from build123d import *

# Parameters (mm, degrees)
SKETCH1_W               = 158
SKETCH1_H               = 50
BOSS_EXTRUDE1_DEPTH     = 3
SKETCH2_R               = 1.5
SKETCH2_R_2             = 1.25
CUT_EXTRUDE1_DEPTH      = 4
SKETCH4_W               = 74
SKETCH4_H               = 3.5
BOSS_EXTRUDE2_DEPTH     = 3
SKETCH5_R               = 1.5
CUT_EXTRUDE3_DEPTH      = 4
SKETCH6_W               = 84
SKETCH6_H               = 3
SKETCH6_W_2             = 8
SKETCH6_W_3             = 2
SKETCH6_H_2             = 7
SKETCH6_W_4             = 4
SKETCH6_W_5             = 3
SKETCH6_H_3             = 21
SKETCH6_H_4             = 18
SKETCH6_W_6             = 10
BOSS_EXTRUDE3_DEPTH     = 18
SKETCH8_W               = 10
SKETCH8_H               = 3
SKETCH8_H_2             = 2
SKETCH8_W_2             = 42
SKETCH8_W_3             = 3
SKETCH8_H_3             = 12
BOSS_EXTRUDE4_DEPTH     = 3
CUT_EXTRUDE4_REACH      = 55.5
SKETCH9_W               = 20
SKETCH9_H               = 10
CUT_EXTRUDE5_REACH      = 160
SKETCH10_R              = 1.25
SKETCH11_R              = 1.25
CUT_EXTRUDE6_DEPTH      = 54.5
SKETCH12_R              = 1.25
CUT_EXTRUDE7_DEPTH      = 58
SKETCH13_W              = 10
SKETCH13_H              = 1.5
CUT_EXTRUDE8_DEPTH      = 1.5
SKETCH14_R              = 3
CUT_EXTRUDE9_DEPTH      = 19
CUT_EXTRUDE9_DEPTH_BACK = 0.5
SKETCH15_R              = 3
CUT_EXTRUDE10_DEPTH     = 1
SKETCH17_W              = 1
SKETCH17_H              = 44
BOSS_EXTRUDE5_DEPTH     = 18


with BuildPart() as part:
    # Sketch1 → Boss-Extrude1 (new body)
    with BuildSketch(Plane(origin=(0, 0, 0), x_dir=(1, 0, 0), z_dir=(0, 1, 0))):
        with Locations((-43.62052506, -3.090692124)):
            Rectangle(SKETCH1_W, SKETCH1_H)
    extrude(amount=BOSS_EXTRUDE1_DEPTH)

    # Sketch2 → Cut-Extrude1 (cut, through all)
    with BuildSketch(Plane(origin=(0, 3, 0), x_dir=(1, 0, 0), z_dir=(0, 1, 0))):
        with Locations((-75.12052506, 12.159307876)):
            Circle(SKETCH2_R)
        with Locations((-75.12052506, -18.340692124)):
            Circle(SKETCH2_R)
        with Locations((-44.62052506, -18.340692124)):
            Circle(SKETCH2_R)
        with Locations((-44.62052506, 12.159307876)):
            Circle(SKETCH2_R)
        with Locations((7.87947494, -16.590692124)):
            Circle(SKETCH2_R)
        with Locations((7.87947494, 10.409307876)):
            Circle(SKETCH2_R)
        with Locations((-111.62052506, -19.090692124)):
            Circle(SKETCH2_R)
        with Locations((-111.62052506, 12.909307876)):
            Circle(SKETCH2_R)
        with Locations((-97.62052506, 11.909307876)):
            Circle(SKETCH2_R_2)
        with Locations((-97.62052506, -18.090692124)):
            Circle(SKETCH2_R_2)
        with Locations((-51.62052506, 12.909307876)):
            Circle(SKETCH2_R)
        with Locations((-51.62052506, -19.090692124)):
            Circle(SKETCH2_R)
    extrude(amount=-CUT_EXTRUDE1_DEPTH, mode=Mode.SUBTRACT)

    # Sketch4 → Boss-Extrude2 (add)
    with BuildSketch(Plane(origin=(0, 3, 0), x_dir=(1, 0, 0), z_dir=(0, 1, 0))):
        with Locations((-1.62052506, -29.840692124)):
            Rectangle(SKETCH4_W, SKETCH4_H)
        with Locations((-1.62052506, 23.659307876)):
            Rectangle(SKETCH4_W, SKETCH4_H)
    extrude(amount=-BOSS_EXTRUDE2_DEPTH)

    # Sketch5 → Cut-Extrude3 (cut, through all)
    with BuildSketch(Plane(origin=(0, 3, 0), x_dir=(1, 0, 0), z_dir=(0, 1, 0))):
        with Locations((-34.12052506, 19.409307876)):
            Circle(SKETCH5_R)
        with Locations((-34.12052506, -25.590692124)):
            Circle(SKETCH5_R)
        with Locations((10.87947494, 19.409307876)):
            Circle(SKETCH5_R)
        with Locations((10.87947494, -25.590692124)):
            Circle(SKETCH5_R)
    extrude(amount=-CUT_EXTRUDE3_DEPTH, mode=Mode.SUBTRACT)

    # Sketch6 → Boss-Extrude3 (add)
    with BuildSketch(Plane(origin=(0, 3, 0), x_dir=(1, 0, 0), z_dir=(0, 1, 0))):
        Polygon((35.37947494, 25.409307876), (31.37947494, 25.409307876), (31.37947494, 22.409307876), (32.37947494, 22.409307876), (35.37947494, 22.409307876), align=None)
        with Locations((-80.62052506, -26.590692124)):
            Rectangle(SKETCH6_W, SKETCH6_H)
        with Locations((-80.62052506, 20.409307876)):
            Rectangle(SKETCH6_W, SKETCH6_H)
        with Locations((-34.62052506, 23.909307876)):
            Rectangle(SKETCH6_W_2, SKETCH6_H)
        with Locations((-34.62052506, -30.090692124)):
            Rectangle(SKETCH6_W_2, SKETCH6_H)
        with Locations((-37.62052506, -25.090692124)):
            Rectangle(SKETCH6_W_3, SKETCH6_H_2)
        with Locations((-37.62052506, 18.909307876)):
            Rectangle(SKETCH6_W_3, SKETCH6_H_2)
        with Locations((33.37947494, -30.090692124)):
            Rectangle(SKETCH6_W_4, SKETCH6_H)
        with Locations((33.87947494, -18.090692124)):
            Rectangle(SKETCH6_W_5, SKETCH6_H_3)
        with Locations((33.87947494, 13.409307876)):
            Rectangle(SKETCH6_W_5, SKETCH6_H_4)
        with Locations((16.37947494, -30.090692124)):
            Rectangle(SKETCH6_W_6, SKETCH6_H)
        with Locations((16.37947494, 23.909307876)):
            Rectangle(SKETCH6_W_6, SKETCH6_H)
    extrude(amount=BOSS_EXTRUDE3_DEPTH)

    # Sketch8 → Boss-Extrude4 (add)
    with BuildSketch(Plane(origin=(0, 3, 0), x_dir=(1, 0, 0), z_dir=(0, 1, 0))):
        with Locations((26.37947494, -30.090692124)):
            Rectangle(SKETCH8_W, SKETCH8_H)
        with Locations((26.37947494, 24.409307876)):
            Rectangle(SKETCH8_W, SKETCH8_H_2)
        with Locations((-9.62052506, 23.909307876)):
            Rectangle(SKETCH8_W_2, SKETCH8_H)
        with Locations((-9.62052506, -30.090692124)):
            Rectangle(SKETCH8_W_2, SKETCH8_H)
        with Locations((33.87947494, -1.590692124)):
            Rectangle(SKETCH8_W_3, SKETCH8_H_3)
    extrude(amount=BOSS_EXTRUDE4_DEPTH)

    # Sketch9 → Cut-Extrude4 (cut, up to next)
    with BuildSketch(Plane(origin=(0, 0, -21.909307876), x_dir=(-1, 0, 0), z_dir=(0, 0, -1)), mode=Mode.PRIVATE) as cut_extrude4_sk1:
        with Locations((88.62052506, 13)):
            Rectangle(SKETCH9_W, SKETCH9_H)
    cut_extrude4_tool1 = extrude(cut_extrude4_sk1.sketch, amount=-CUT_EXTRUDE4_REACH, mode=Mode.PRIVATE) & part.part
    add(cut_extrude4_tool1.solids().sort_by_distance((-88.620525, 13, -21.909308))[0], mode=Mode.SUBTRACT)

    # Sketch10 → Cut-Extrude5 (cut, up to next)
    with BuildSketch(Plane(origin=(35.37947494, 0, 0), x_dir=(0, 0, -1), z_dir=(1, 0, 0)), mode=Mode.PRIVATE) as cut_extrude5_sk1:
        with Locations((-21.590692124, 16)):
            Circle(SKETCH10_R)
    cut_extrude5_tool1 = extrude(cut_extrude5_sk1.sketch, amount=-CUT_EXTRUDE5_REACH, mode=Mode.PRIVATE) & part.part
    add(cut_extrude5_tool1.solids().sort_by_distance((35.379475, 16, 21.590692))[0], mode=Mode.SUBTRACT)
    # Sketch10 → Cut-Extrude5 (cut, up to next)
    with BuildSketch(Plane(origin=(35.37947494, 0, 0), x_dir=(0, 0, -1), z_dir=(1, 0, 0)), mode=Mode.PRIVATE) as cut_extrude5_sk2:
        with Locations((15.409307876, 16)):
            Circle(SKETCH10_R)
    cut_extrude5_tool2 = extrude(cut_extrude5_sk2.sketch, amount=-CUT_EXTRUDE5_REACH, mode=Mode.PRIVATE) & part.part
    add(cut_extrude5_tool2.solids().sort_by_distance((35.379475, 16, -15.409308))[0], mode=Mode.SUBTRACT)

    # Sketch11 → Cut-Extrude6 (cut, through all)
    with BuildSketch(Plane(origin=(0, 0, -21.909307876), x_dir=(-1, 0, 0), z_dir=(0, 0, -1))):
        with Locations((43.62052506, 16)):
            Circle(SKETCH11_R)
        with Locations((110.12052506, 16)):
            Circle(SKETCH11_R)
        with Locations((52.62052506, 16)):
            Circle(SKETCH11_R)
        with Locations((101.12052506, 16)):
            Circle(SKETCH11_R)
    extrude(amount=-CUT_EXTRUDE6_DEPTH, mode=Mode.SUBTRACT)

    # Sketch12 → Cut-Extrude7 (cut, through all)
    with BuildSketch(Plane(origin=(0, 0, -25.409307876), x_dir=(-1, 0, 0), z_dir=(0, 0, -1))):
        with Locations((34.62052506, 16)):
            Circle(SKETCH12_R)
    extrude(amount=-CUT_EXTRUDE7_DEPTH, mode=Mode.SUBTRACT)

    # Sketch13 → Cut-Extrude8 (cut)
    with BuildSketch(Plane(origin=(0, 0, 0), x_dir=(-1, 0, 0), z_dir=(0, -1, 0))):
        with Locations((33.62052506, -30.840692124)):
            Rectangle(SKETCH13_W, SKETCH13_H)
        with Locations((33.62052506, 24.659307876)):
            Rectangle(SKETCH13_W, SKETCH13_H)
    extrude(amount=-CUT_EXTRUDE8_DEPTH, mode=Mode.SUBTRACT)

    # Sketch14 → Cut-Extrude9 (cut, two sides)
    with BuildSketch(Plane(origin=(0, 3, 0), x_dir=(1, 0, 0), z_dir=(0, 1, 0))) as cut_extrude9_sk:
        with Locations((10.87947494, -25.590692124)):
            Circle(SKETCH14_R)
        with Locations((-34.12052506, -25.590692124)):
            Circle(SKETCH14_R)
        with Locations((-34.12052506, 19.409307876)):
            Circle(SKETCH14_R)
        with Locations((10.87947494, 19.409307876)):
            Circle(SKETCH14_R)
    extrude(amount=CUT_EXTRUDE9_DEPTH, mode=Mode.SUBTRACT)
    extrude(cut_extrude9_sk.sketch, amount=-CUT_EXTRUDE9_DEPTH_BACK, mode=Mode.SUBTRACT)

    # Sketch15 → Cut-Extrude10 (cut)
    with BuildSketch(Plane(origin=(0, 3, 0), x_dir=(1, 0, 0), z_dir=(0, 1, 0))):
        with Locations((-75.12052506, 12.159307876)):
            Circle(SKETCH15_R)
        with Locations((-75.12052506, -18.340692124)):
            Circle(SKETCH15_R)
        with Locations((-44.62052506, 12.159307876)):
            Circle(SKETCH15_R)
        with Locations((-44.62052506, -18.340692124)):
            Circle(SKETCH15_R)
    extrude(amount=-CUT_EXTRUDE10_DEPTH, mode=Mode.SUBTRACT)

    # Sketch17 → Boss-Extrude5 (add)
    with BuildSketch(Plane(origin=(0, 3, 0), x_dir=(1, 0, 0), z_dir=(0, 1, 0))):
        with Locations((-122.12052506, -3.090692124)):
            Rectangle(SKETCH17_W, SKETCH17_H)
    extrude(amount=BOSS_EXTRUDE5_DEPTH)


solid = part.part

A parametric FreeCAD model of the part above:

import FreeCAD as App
import Part
import Sketcher
Q = App.Units.Quantity

doc = App.newDocument("Part")
body = doc.addObject("PartDesign::Body", "Body")

# Sketch on XZ plane
sketch1 = body.newObject("Sketcher::SketchObject", "Sketch")
sketch1.AttachmentSupport = (doc.getObject("XZ_Plane"), [""])
sketch1.MapMode = "FlatFace"
sketch1.addGeometry(Part.LineSegment(App.Vector(-123, -22, 0), App.Vector(-123, 28, 0)), False)
sketch1.addGeometry(Part.LineSegment(App.Vector(-123, 28, 0), App.Vector(35, 28, 0)), False)
sketch1.addGeometry(Part.LineSegment(App.Vector(35, 28, 0), App.Vector(35, -22, 0)), False)
sketch1.addGeometry(Part.LineSegment(App.Vector(35, -22, 0), App.Vector(-123, -22, 0)), False)
sketch1.addConstraint(Sketcher.Constraint("Coincident", 0, 2, 1, 1))
sketch1.addConstraint(Sketcher.Constraint("Coincident", 1, 2, 2, 1))
sketch1.addConstraint(Sketcher.Constraint("Coincident", 2, 2, 3, 1))
sketch1.addConstraint(Sketcher.Constraint("Coincident", 3, 2, 0, 1))
sketch1.addConstraint(Sketcher.Constraint("Vertical", 0))
sketch1.addConstraint(Sketcher.Constraint("Horizontal", 1))
sketch1.addConstraint(Sketcher.Constraint("Vertical", 2))
sketch1.addConstraint(Sketcher.Constraint("Horizontal", 3))
sketch1.addConstraint(Sketcher.Constraint("DistanceX", 1, 1, 1, 2, Q("158 mm")))
sketch1.addConstraint(Sketcher.Constraint("DistanceY", 0, 1, 0, 2, Q("50 mm")))
sketch1.addConstraint(Sketcher.Constraint("DistanceX", 0, 2, -1, 1, Q("122.620525 mm")))
sketch1.addConstraint(Sketcher.Constraint("DistanceY", -1, 1, 0, 2, Q("28.090692 mm")))
pad1 = body.newObject("PartDesign::Pad", "Pad")
pad1.Profile = sketch1
pad1.Length = 3
pad1.Reversed = True

# Sketch on XZ plane
sketch2 = body.newObject("Sketcher::SketchObject", "Sketch001")
sketch2.AttachmentSupport = (doc.getObject("XZ_Plane"), [""])
sketch2.MapMode = "FlatFace"
sketch2.AttachmentOffset = App.Placement(App.Vector(0, 0, -3), App.Rotation())
sketch2.addGeometry(Part.Circle(App.Vector(-75.1, -12.2, 0), App.Vector(0, 0, 1), 1.5), False)
sketch2.addGeometry(Part.Circle(App.Vector(-75.1, 18.3, 0), App.Vector(0, 0, 1), 1.5), False)
sketch2.addGeometry(Part.Circle(App.Vector(-44.6, 18.3, 0), App.Vector(0, 0, 1), 1.5), False)
sketch2.addGeometry(Part.Circle(App.Vector(-44.6, -12.2, 0), App.Vector(0, 0, 1), 1.5), False)
sketch2.addGeometry(Part.Circle(App.Vector(7.9, 16.6, 0), App.Vector(0, 0, 1), 1.5), False)
sketch2.addGeometry(Part.Circle(App.Vector(7.9, -10.4, 0), App.Vector(0, 0, 1), 1.5), False)
sketch2.addGeometry(Part.Circle(App.Vector(-111.6, 19.1, 0), App.Vector(0, 0, 1), 1.5), False)
sketch2.addGeometry(Part.Circle(App.Vector(-111.6, -12.9, 0), App.Vector(0, 0, 1), 1.5), False)
sketch2.addGeometry(Part.Circle(App.Vector(-97.6, -11.9, 0), App.Vector(0, 0, 1), 1.2), False)
sketch2.addGeometry(Part.Circle(App.Vector(-97.6, 18.1, 0), App.Vector(0, 0, 1), 1.2), False)
sketch2.addGeometry(Part.Circle(App.Vector(-51.6, -12.9, 0), App.Vector(0, 0, 1), 1.5), False)
sketch2.addGeometry(Part.Circle(App.Vector(-51.6, 19.1, 0), App.Vector(0, 0, 1), 1.5), False)
sketch2.addConstraint(Sketcher.Constraint("Equal", 0, 1))
sketch2.addConstraint(Sketcher.Constraint("Equal", 1, 2))
sketch2.addConstraint(Sketcher.Constraint("Equal", 2, 3))
sketch2.addConstraint(Sketcher.Constraint("Equal", 3, 4))
sketch2.addConstraint(Sketcher.Constraint("Equal", 4, 5))
sketch2.addConstraint(Sketcher.Constraint("Equal", 5, 6))
sketch2.addConstraint(Sketcher.Constraint("Equal", 6, 7))
sketch2.addConstraint(Sketcher.Constraint("Equal", 8, 9))
sketch2.addConstraint(Sketcher.Constraint("Equal", 7, 10))
sketch2.addConstraint(Sketcher.Constraint("Equal", 10, 11))
sketch2.addConstraint(Sketcher.Constraint("Horizontal", 1, 3, 2, 3))
sketch2.addConstraint(Sketcher.Constraint("Horizontal", 0, 3, 3, 3))
sketch2.addConstraint(Sketcher.Constraint("Horizontal", 7, 3, 10, 3))
sketch2.addConstraint(Sketcher.Constraint("Horizontal", 6, 3, 11, 3))
sketch2.addConstraint(Sketcher.Constraint("Vertical", 0, 3, 1, 3))
sketch2.addConstraint(Sketcher.Constraint("Vertical", 2, 3, 3, 3))
sketch2.addConstraint(Sketcher.Constraint("Vertical", 4, 3, 5, 3))
sketch2.addConstraint(Sketcher.Constraint("Vertical", 6, 3, 7, 3))
sketch2.addConstraint(Sketcher.Constraint("Vertical", 8, 3, 9, 3))
sketch2.addConstraint(Sketcher.Constraint("Vertical", 10, 3, 11, 3))
sketch2.addConstraint(Sketcher.Constraint("Diameter", 0, Q("3 mm")))
sketch2.addConstraint(Sketcher.Constraint("Diameter", 8, Q("2.5 mm")))
sketch2.addConstraint(Sketcher.Constraint("DistanceX", 1, 3, 4, 3, Q("83 mm")))
sketch2.addConstraint(Sketcher.Constraint("DistanceY", 5, 3, 4, 3, Q("27 mm")))
sketch2.addConstraint(Sketcher.Constraint("DistanceX", 6, 3, 2, 3, Q("67 mm")))
sketch2.addConstraint(Sketcher.Constraint("DistanceY", 7, 3, 6, 3, Q("32 mm")))
sketch2.addConstraint(Sketcher.Constraint("DistanceX", 7, 3, 8, 3, Q("14 mm")))
sketch2.addConstraint(Sketcher.Constraint("DistanceY", 7, 3, 8, 3, Q("1 mm")))
sketch2.addConstraint(Sketcher.Constraint("DistanceY", 9, 3, 6, 3, Q("1 mm")))
sketch2.addConstraint(Sketcher.Constraint("DistanceX", 10, 3, 3, 3, Q("7 mm")))
sketch2.addConstraint(Sketcher.Constraint("DistanceY", 0, 3, 1, 3, Q("30.5 mm")))
sketch2.addConstraint(Sketcher.Constraint("DistanceX", 1, 3, 2, 3, Q("30.5 mm")))
sketch2.addConstraint(Sketcher.Constraint("DistanceY", 4, 3, 6, 3, Q("2.5 mm")))
sketch2.addConstraint(Sketcher.Constraint("DistanceY", 4, 3, 2, 3, Q("1.75 mm")))
sketch2.addConstraint(Sketcher.Constraint("DistanceX", 0, 3, -1, 1, Q("75.120525 mm")))
sketch2.addConstraint(Sketcher.Constraint("DistanceY", 0, 3, -1, 1, Q("12.159308 mm")))
pocket1 = body.newObject("PartDesign::Pocket", "Pocket")
pocket1.Profile = sketch2
pocket1.Type = "ThroughAll"
pocket1.Reversed = True

# Sketch on XZ plane
sketch3 = body.newObject("Sketcher::SketchObject", "Sketch002")
sketch3.AttachmentSupport = (doc.getObject("XZ_Plane"), [""])
sketch3.MapMode = "FlatFace"
sketch3.AttachmentOffset = App.Placement(App.Vector(0, 0, -3), App.Rotation())
sketch3.addGeometry(Part.LineSegment(App.Vector(-38.6, 28.1, 0), App.Vector(-38.6, 31.6, 0)), False)
sketch3.addGeometry(Part.LineSegment(App.Vector(-38.6, 31.6, 0), App.Vector(35.4, 31.6, 0)), False)
sketch3.addGeometry(Part.LineSegment(App.Vector(35.4, 31.6, 0), App.Vector(35.4, 28.1, 0)), False)
sketch3.addGeometry(Part.LineSegment(App.Vector(35.4, 28.1, 0), App.Vector(-38.6, 28.1, 0)), False)
sketch3.addGeometry(Part.LineSegment(App.Vector(-38.6, -25.4, 0), App.Vector(-38.6, -21.9, 0)), False)
sketch3.addGeometry(Part.LineSegment(App.Vector(-38.6, -21.9, 0), App.Vector(35.4, -21.9, 0)), False)
sketch3.addGeometry(Part.LineSegment(App.Vector(35.4, -21.9, 0), App.Vector(35.4, -25.4, 0)), False)
sketch3.addGeometry(Part.LineSegment(App.Vector(35.4, -25.4, 0), App.Vector(-38.6, -25.4, 0)), False)
sketch3.addConstraint(Sketcher.Constraint("Coincident", 0, 2, 1, 1))
sketch3.addConstraint(Sketcher.Constraint("Coincident", 1, 2, 2, 1))
sketch3.addConstraint(Sketcher.Constraint("Coincident", 2, 2, 3, 1))
sketch3.addConstraint(Sketcher.Constraint("Coincident", 3, 2, 0, 1))
sketch3.addConstraint(Sketcher.Constraint("Coincident", 4, 2, 5, 1))
sketch3.addConstraint(Sketcher.Constraint("Coincident", 5, 2, 6, 1))
sketch3.addConstraint(Sketcher.Constraint("Coincident", 6, 2, 7, 1))
sketch3.addConstraint(Sketcher.Constraint("Coincident", 7, 2, 4, 1))
sketch3.addConstraint(Sketcher.Constraint("Vertical", 0))
sketch3.addConstraint(Sketcher.Constraint("Horizontal", 1))
sketch3.addConstraint(Sketcher.Constraint("Vertical", 2))
sketch3.addConstraint(Sketcher.Constraint("Horizontal", 3))
sketch3.addConstraint(Sketcher.Constraint("Vertical", 4))
sketch3.addConstraint(Sketcher.Constraint("Horizontal", 5))
sketch3.addConstraint(Sketcher.Constraint("Vertical", 6))
sketch3.addConstraint(Sketcher.Constraint("Horizontal", 7))
sketch3.addConstraint(Sketcher.Constraint("Vertical", 3, 2, 4, 2))
sketch3.addConstraint(Sketcher.Constraint("Vertical", 2, 2, 5, 2))
sketch3.addConstraint(Sketcher.Constraint("Equal", 2, 4))
sketch3.addConstraint(Sketcher.Constraint("DistanceX", 1, 1, 1, 2, Q("74 mm")))
sketch3.addConstraint(Sketcher.Constraint("DistanceY", 0, 1, 0, 2, Q("3.5 mm")))
sketch3.addConstraint(Sketcher.Constraint("DistanceY", 4, 2, 3, 2, Q("50 mm")))
sketch3.addConstraint(Sketcher.Constraint("DistanceX", 0, 2, -1, 1, Q("38.620525 mm")))
sketch3.addConstraint(Sketcher.Constraint("DistanceY", -1, 1, 0, 2, Q("31.590692 mm")))
pad2 = body.newObject("PartDesign::Pad", "Pad001")
pad2.Profile = sketch3
pad2.Length = 3

# Sketch on XZ plane
sketch4 = body.newObject("Sketcher::SketchObject", "Sketch003")
sketch4.AttachmentSupport = (doc.getObject("XZ_Plane"), [""])
sketch4.MapMode = "FlatFace"
sketch4.AttachmentOffset = App.Placement(App.Vector(0, 0, -3), App.Rotation())
sketch4.addGeometry(Part.Circle(App.Vector(-34.1, -19.4, 0), App.Vector(0, 0, 1), 1.5), False)
sketch4.addGeometry(Part.Circle(App.Vector(-34.1, 25.6, 0), App.Vector(0, 0, 1), 1.5), False)
sketch4.addGeometry(Part.Circle(App.Vector(10.9, -19.4, 0), App.Vector(0, 0, 1), 1.5), False)
sketch4.addGeometry(Part.Circle(App.Vector(10.9, 25.6, 0), App.Vector(0, 0, 1), 1.5), False)
sketch4.addConstraint(Sketcher.Constraint("Equal", 0, 1))
sketch4.addConstraint(Sketcher.Constraint("Equal", 1, 2))
sketch4.addConstraint(Sketcher.Constraint("Equal", 2, 3))
sketch4.addConstraint(Sketcher.Constraint("Horizontal", 0, 3, 2, 3))
sketch4.addConstraint(Sketcher.Constraint("Horizontal", 1, 3, 3, 3))
sketch4.addConstraint(Sketcher.Constraint("Vertical", 0, 3, 1, 3))
sketch4.addConstraint(Sketcher.Constraint("Vertical", 2, 3, 3, 3))
sketch4.addConstraint(Sketcher.Constraint("Diameter", 0, Q("3 mm")))
sketch4.addConstraint(Sketcher.Constraint("DistanceY", 0, 3, 1, 3, Q("45 mm")))
sketch4.addConstraint(Sketcher.Constraint("DistanceX", 0, 3, 2, 3, Q("45 mm")))
sketch4.addConstraint(Sketcher.Constraint("DistanceX", 0, 3, -1, 1, Q("34.120525 mm")))
sketch4.addConstraint(Sketcher.Constraint("DistanceY", 0, 3, -1, 1, Q("19.409308 mm")))
pocket2 = body.newObject("PartDesign::Pocket", "Pocket001")
pocket2.Profile = sketch4
pocket2.Type = "ThroughAll"
pocket2.Reversed = True

# Sketch on XZ plane
sketch5 = body.newObject("Sketcher::SketchObject", "Sketch004")
sketch5.AttachmentSupport = (doc.getObject("XZ_Plane"), [""])
sketch5.MapMode = "FlatFace"
sketch5.AttachmentOffset = App.Placement(App.Vector(0, 0, -3), App.Rotation())
sketch5.addGeometry(Part.LineSegment(App.Vector(35.4, -25.4, 0), App.Vector(31.4, -25.4, 0)), False)
sketch5.addGeometry(Part.LineSegment(App.Vector(31.4, -25.4, 0), App.Vector(31.4, -22.4, 0)), False)
sketch5.addGeometry(Part.LineSegment(App.Vector(31.4, -22.4, 0), App.Vector(32.4, -22.4, 0)), False)
sketch5.addGeometry(Part.LineSegment(App.Vector(32.4, -22.4, 0), App.Vector(32.4, -4.4, 0)), False)
sketch5.addGeometry(Part.LineSegment(App.Vector(32.4, -4.4, 0), App.Vector(35.4, -4.4, 0)), False)
sketch5.addGeometry(Part.LineSegment(App.Vector(35.4, -4.4, 0), App.Vector(35.4, -25.4, 0)), False)
sketch5.addGeometry(Part.LineSegment(App.Vector(-122.6, 25.1, 0), App.Vector(-122.6, 28.1, 0)), False)
sketch5.addGeometry(Part.LineSegment(App.Vector(-122.6, 28.1, 0), App.Vector(-38.6, 28.1, 0)), False)
sketch5.addGeometry(Part.LineSegment(App.Vector(-38.6, 28.1, 0), App.Vector(-38.6, 31.6, 0)), False)
sketch5.addGeometry(Part.LineSegment(App.Vector(-38.6, 31.6, 0), App.Vector(-30.6, 31.6, 0)), False)
sketch5.addGeometry(Part.LineSegment(App.Vector(-30.6, 31.6, 0), App.Vector(-30.6, 28.6, 0)), False)
sketch5.addGeometry(Part.LineSegment(App.Vector(-30.6, 28.6, 0), App.Vector(-36.6, 28.6, 0)), False)
sketch5.addGeometry(Part.LineSegment(App.Vector(-36.6, 28.6, 0), App.Vector(-36.6, 21.6, 0)), False)
sketch5.addGeometry(Part.LineSegment(App.Vector(-36.6, 21.6, 0), App.Vector(-38.6, 21.6, 0)), False)
sketch5.addGeometry(Part.LineSegment(App.Vector(-38.6, 21.6, 0), App.Vector(-38.6, 25.1, 0)), False)
sketch5.addGeometry(Part.LineSegment(App.Vector(-38.6, 25.1, 0), App.Vector(-122.6, 25.1, 0)), False)
sketch5.addGeometry(Part.LineSegment(App.Vector(-122.6, -21.9, 0), App.Vector(-122.6, -18.9, 0)), False)
sketch5.addGeometry(Part.LineSegment(App.Vector(-122.6, -18.9, 0), App.Vector(-38.6, -18.9, 0)), False)
sketch5.addGeometry(Part.LineSegment(App.Vector(-38.6, -18.9, 0), App.Vector(-38.6, -15.4, 0)), False)
sketch5.addGeometry(Part.LineSegment(App.Vector(-38.6, -15.4, 0), App.Vector(-36.6, -15.4, 0)), False)
sketch5.addGeometry(Part.LineSegment(App.Vector(-36.6, -15.4, 0), App.Vector(-36.6, -22.4, 0)), False)
sketch5.addGeometry(Part.LineSegment(App.Vector(-36.6, -22.4, 0), App.Vector(-30.6, -22.4, 0)), False)
sketch5.addGeometry(Part.LineSegment(App.Vector(-30.6, -22.4, 0), App.Vector(-30.6, -25.4, 0)), False)
sketch5.addGeometry(Part.LineSegment(App.Vector(-30.6, -25.4, 0), App.Vector(-38.6, -25.4, 0)), False)
sketch5.addGeometry(Part.LineSegment(App.Vector(-38.6, -25.4, 0), App.Vector(-38.6, -21.9, 0)), False)
sketch5.addGeometry(Part.LineSegment(App.Vector(-38.6, -21.9, 0), App.Vector(-122.6, -21.9, 0)), False)
sketch5.addGeometry(Part.LineSegment(App.Vector(31.4, 28.6, 0), App.Vector(31.4, 31.6, 0)), False)
sketch5.addGeometry(Part.LineSegment(App.Vector(31.4, 31.6, 0), App.Vector(35.4, 31.6, 0)), False)
sketch5.addGeometry(Part.LineSegment(App.Vector(35.4, 31.6, 0), App.Vector(35.4, 7.6, 0)), False)
sketch5.addGeometry(Part.LineSegment(App.Vector(35.4, 7.6, 0), App.Vector(32.4, 7.6, 0)), False)
sketch5.addGeometry(Part.LineSegment(App.Vector(32.4, 7.6, 0), App.Vector(32.4, 28.6, 0)), False)
sketch5.addGeometry(Part.LineSegment(App.Vector(32.4, 28.6, 0), App.Vector(31.4, 28.6, 0)), False)
sketch5.addGeometry(Part.LineSegment(App.Vector(11.4, 28.6, 0), App.Vector(11.4, 31.6, 0)), False)
sketch5.addGeometry(Part.LineSegment(App.Vector(11.4, 31.6, 0), App.Vector(21.4, 31.6, 0)), False)
sketch5.addGeometry(Part.LineSegment(App.Vector(21.4, 31.6, 0), App.Vector(21.4, 28.6, 0)), False)
sketch5.addGeometry(Part.LineSegment(App.Vector(21.4, 28.6, 0), App.Vector(11.4, 28.6, 0)), False)
sketch5.addGeometry(Part.LineSegment(App.Vector(11.4, -25.4, 0), App.Vector(11.4, -22.4, 0)), False)
sketch5.addGeometry(Part.LineSegment(App.Vector(11.4, -22.4, 0), App.Vector(21.4, -22.4, 0)), False)
sketch5.addGeometry(Part.LineSegment(App.Vector(21.4, -22.4, 0), App.Vector(21.4, -25.4, 0)), False)
sketch5.addGeometry(Part.LineSegment(App.Vector(21.4, -25.4, 0), App.Vector(11.4, -25.4, 0)), False)
sketch5.addConstraint(Sketcher.Constraint("Coincident", 0, 2, 1, 1))
sketch5.addConstraint(Sketcher.Constraint("Coincident", 1, 2, 2, 1))
sketch5.addConstraint(Sketcher.Constraint("Coincident", 2, 2, 3, 1))
sketch5.addConstraint(Sketcher.Constraint("Coincident", 3, 2, 4, 1))
sketch5.addConstraint(Sketcher.Constraint("Coincident", 4, 2, 5, 1))
sketch5.addConstraint(Sketcher.Constraint("Coincident", 5, 2, 0, 1))
sketch5.addConstraint(Sketcher.Constraint("Coincident", 6, 2, 7, 1))
sketch5.addConstraint(Sketcher.Constraint("Coincident", 7, 2, 8, 1))
sketch5.addConstraint(Sketcher.Constraint("Coincident", 8, 2, 9, 1))
sketch5.addConstraint(Sketcher.Constraint("Coincident", 9, 2, 10, 1))
sketch5.addConstraint(Sketcher.Constraint("Coincident", 10, 2, 11, 1))
sketch5.addConstraint(Sketcher.Constraint("Coincident", 11, 2, 12, 1))
sketch5.addConstraint(Sketcher.Constraint("Coincident", 12, 2, 13, 1))
sketch5.addConstraint(Sketcher.Constraint("Coincident", 13, 2, 14, 1))
sketch5.addConstraint(Sketcher.Constraint("Coincident", 14, 2, 15, 1))
sketch5.addConstraint(Sketcher.Constraint("Coincident", 15, 2, 6, 1))
sketch5.addConstraint(Sketcher.Constraint("Coincident", 16, 2, 17, 1))
sketch5.addConstraint(Sketcher.Constraint("Coincident", 17, 2, 18, 1))
sketch5.addConstraint(Sketcher.Constraint("Coincident", 18, 2, 19, 1))
sketch5.addConstraint(Sketcher.Constraint("Coincident", 19, 2, 20, 1))
sketch5.addConstraint(Sketcher.Constraint("Coincident", 20, 2, 21, 1))
sketch5.addConstraint(Sketcher.Constraint("Coincident", 21, 2, 22, 1))
sketch5.addConstraint(Sketcher.Constraint("Coincident", 22, 2, 23, 1))
sketch5.addConstraint(Sketcher.Constraint("Coincident", 23, 2, 24, 1))
sketch5.addConstraint(Sketcher.Constraint("Coincident", 24, 2, 25, 1))
sketch5.addConstraint(Sketcher.Constraint("Coincident", 25, 2, 16, 1))
sketch5.addConstraint(Sketcher.Constraint("Coincident", 26, 2, 27, 1))
sketch5.addConstraint(Sketcher.Constraint("Coincident", 27, 2, 28, 1))
sketch5.addConstraint(Sketcher.Constraint("Coincident", 28, 2, 29, 1))
sketch5.addConstraint(Sketcher.Constraint("Coincident", 29, 2, 30, 1))
sketch5.addConstraint(Sketcher.Constraint("Coincident", 30, 2, 31, 1))
sketch5.addConstraint(Sketcher.Constraint("Coincident", 31, 2, 26, 1))
sketch5.addConstraint(Sketcher.Constraint("Coincident", 32, 2, 33, 1))
sketch5.addConstraint(Sketcher.Constraint("Coincident", 33, 2, 34, 1))
sketch5.addConstraint(Sketcher.Constraint("Coincident", 34, 2, 35, 1))
sketch5.addConstraint(Sketcher.Constraint("Coincident", 35, 2, 32, 1))
sketch5.addConstraint(Sketcher.Constraint("Coincident", 36, 2, 37, 1))
sketch5.addConstraint(Sketcher.Constraint("Coincident", 37, 2, 38, 1))
sketch5.addConstraint(Sketcher.Constraint("Coincident", 38, 2, 39, 1))
sketch5.addConstraint(Sketcher.Constraint("Coincident", 39, 2, 36, 1))
sketch5.addConstraint(Sketcher.Constraint("Horizontal", 0))
sketch5.addConstraint(Sketcher.Constraint("Vertical", 1))
sketch5.addConstraint(Sketcher.Constraint("Horizontal", 2))
sketch5.addConstraint(Sketcher.Constraint("Vertical", 3))
sketch5.addConstraint(Sketcher.Constraint("Horizontal", 4))
sketch5.addConstraint(Sketcher.Constraint("Vertical", 5))
sketch5.addConstraint(Sketcher.Constraint("Vertical", 6))
sketch5.addConstraint(Sketcher.Constraint("Horizontal", 7))
sketch5.addConstraint(Sketcher.Constraint("Vertical", 8))
sketch5.addConstraint(Sketcher.Constraint("Horizontal", 9))
sketch5.addConstraint(Sketcher.Constraint("Vertical", 10))
sketch5.addConstraint(Sketcher.Constraint("Horizontal", 11))
sketch5.addConstraint(Sketcher.Constraint("Vertical", 12))
sketch5.addConstraint(Sketcher.Constraint("Horizontal", 13))
sketch5.addConstraint(Sketcher.Constraint("Vertical", 14))
sketch5.addConstraint(Sketcher.Constraint("Horizontal", 15))
sketch5.addConstraint(Sketcher.Constraint("Vertical", 16))
sketch5.addConstraint(Sketcher.Constraint("Horizontal", 17))
sketch5.addConstraint(Sketcher.Constraint("Vertical", 18))
sketch5.addConstraint(Sketcher.Constraint("Horizontal", 19))
sketch5.addConstraint(Sketcher.Constraint("Vertical", 20))
sketch5.addConstraint(Sketcher.Constraint("Horizontal", 21))
sketch5.addConstraint(Sketcher.Constraint("Vertical", 22))
sketch5.addConstraint(Sketcher.Constraint("Horizontal", 23))
sketch5.addConstraint(Sketcher.Constraint("Vertical", 24))
sketch5.addConstraint(Sketcher.Constraint("Horizontal", 25))
sketch5.addConstraint(Sketcher.Constraint("Vertical", 26))
sketch5.addConstraint(Sketcher.Constraint("Horizontal", 27))
sketch5.addConstraint(Sketcher.Constraint("Vertical", 28))
sketch5.addConstraint(Sketcher.Constraint("Horizontal", 29))
sketch5.addConstraint(Sketcher.Constraint("Vertical", 30))
sketch5.addConstraint(Sketcher.Constraint("Horizontal", 31))
sketch5.addConstraint(Sketcher.Constraint("Vertical", 32))
sketch5.addConstraint(Sketcher.Constraint("Horizontal", 33))
sketch5.addConstraint(Sketcher.Constraint("Vertical", 34))
sketch5.addConstraint(Sketcher.Constraint("Horizontal", 35))
sketch5.addConstraint(Sketcher.Constraint("Vertical", 36))
sketch5.addConstraint(Sketcher.Constraint("Horizontal", 37))
sketch5.addConstraint(Sketcher.Constraint("Vertical", 38))
sketch5.addConstraint(Sketcher.Constraint("Horizontal", 39))
sketch5.addConstraint(Sketcher.Constraint("Horizontal", 2, 2, 20, 2))
sketch5.addConstraint(Sketcher.Constraint("Horizontal", 5, 2, 22, 2))
sketch5.addConstraint(Sketcher.Constraint("Horizontal", 9, 2, 26, 2))
sketch5.addConstraint(Sketcher.Constraint("Horizontal", 11, 2, 30, 2))
sketch5.addConstraint(Sketcher.Constraint("Horizontal", 27, 2, 32, 2))
sketch5.addConstraint(Sketcher.Constraint("Horizontal", 31, 2, 34, 2))
sketch5.addConstraint(Sketcher.Constraint("Horizontal", 21, 2, 36, 2))
sketch5.addConstraint(Sketcher.Constraint("Horizontal", 23, 2, 38, 2))
sketch5.addConstraint(Sketcher.Constraint("Vertical", 8, 2, 13, 2))
sketch5.addConstraint(Sketcher.Constraint("Vertical", 15, 2, 16, 2))
sketch5.addConstraint(Sketcher.Constraint("Vertical", 14, 2, 17, 2))
sketch5.addConstraint(Sketcher.Constraint("Vertical", 12, 2, 19, 2))
sketch5.addConstraint(Sketcher.Constraint("Vertical", 10, 2, 21, 2))
sketch5.addConstraint(Sketcher.Constraint("Vertical", 18, 2, 23, 2))
sketch5.addConstraint(Sketcher.Constraint("Vertical", 1, 2, 26, 2))
sketch5.addConstraint(Sketcher.Constraint("Vertical", 5, 2, 27, 2))
sketch5.addConstraint(Sketcher.Constraint("Vertical", 3, 2, 29, 2))
sketch5.addConstraint(Sketcher.Constraint("Vertical", 35, 2, 36, 2))
sketch5.addConstraint(Sketcher.Constraint("Vertical", 34, 2, 37, 2))
sketch5.addConstraint(Sketcher.Constraint("Equal", 29, 1))
sketch5.addConstraint(Sketcher.Constraint("Equal", 1, 6))
sketch5.addConstraint(Sketcher.Constraint("Equal", 6, 10))
sketch5.addConstraint(Sketcher.Constraint("Equal", 8, 14))
sketch5.addConstraint(Sketcher.Constraint("Equal", 10, 16))
sketch5.addConstraint(Sketcher.Constraint("Equal", 14, 18))
sketch5.addConstraint(Sketcher.Constraint("Equal", 12, 20))
sketch5.addConstraint(Sketcher.Constraint("Equal", 5, 30))
sketch5.addConstraint(Sketcher.Constraint("DistanceX", 0, 2, 0, 1, Q("4 mm")))
sketch5.addConstraint(Sketcher.Constraint("DistanceX", 2, 1, 2, 2, Q("1 mm")))
sketch5.addConstraint(Sketcher.Constraint("DistanceX", 7, 1, 7, 2, Q("84 mm")))
sketch5.addConstraint(Sketcher.Constraint("DistanceX", 9, 1, 9, 2, Q("8 mm")))
sketch5.addConstraint(Sketcher.Constraint("DistanceX", 11, 2, 11, 1, Q("6 mm")))
sketch5.addConstraint(Sketcher.Constraint("DistanceX", 33, 1, 33, 2, Q("10 mm")))
sketch5.addConstraint(Sketcher.Constraint("DistanceY", 3, 1, 3, 2, Q("18 mm")))
sketch5.addConstraint(Sketcher.Constraint("DistanceY", 12, 2, 12, 1, Q("7 mm")))
sketch5.addConstraint(Sketcher.Constraint("DistanceX", 6, 2, 3, 2, Q("155 mm")))
sketch5.addConstraint(Sketcher.Constraint("DistanceY", 3, 2, 8, 2, Q("36 mm")))
sketch5.addConstraint(Sketcher.Constraint("DistanceX", 32, 2, 26, 2, Q("20 mm")))
sketch5.addConstraint(Sketcher.Constraint("DistanceX", -1, 1, 0, 2, Q("31.379475 mm")))
sketch5.addConstraint(Sketcher.Constraint("DistanceY", 0, 2, -1, 1, Q("25.409308 mm")))
pad3 = body.newObject("PartDesign::Pad", "Pad002")
pad3.Profile = sketch5
pad3.Length = 18
pad3.Reversed = True

# Sketch on XZ plane
sketch6 = body.newObject("Sketcher::SketchObject", "Sketch005")
sketch6.AttachmentSupport = (doc.getObject("XZ_Plane"), [""])
sketch6.MapMode = "FlatFace"
sketch6.AttachmentOffset = App.Placement(App.Vector(0, 0, -3), App.Rotation())
sketch6.addGeometry(Part.LineSegment(App.Vector(21.4, 28.6, 0), App.Vector(21.4, 31.6, 0)), False)
sketch6.addGeometry(Part.LineSegment(App.Vector(21.4, 31.6, 0), App.Vector(31.4, 31.6, 0)), False)
sketch6.addGeometry(Part.LineSegment(App.Vector(31.4, 31.6, 0), App.Vector(31.4, 28.6, 0)), False)
sketch6.addGeometry(Part.LineSegment(App.Vector(31.4, 28.6, 0), App.Vector(21.4, 28.6, 0)), False)
sketch6.addGeometry(Part.LineSegment(App.Vector(21.4, -25.4, 0), App.Vector(21.4, -23.4, 0)), False)
sketch6.addGeometry(Part.LineSegment(App.Vector(21.4, -23.4, 0), App.Vector(31.4, -23.4, 0)), False)
sketch6.addGeometry(Part.LineSegment(App.Vector(31.4, -23.4, 0), App.Vector(31.4, -25.4, 0)), False)
sketch6.addGeometry(Part.LineSegment(App.Vector(31.4, -25.4, 0), App.Vector(21.4, -25.4, 0)), False)
sketch6.addGeometry(Part.LineSegment(App.Vector(-30.6, -25.4, 0), App.Vector(-30.6, -22.4, 0)), False)
sketch6.addGeometry(Part.LineSegment(App.Vector(-30.6, -22.4, 0), App.Vector(11.4, -22.4, 0)), False)
sketch6.addGeometry(Part.LineSegment(App.Vector(11.4, -22.4, 0), App.Vector(11.4, -25.4, 0)), False)
sketch6.addGeometry(Part.LineSegment(App.Vector(11.4, -25.4, 0), App.Vector(-30.6, -25.4, 0)), False)
sketch6.addGeometry(Part.LineSegment(App.Vector(-30.6, 28.6, 0), App.Vector(-30.6, 31.6, 0)), False)
sketch6.addGeometry(Part.LineSegment(App.Vector(-30.6, 31.6, 0), App.Vector(11.4, 31.6, 0)), False)
sketch6.addGeometry(Part.LineSegment(App.Vector(11.4, 31.6, 0), App.Vector(11.4, 28.6, 0)), False)
sketch6.addGeometry(Part.LineSegment(App.Vector(11.4, 28.6, 0), App.Vector(-30.6, 28.6, 0)), False)
sketch6.addGeometry(Part.LineSegment(App.Vector(32.4, -4.4, 0), App.Vector(32.4, 7.6, 0)), False)
sketch6.addGeometry(Part.LineSegment(App.Vector(32.4, 7.6, 0), App.Vector(35.4, 7.6, 0)), False)
sketch6.addGeometry(Part.LineSegment(App.Vector(35.4, 7.6, 0), App.Vector(35.4, -4.4, 0)), False)
sketch6.addGeometry(Part.LineSegment(App.Vector(35.4, -4.4, 0), App.Vector(32.4, -4.4, 0)), False)
sketch6.addConstraint(Sketcher.Constraint("Coincident", 0, 2, 1, 1))
sketch6.addConstraint(Sketcher.Constraint("Coincident", 1, 2, 2, 1))
sketch6.addConstraint(Sketcher.Constraint("Coincident", 2, 2, 3, 1))
sketch6.addConstraint(Sketcher.Constraint("Coincident", 3, 2, 0, 1))
sketch6.addConstraint(Sketcher.Constraint("Coincident", 4, 2, 5, 1))
sketch6.addConstraint(Sketcher.Constraint("Coincident", 5, 2, 6, 1))
sketch6.addConstraint(Sketcher.Constraint("Coincident", 6, 2, 7, 1))
sketch6.addConstraint(Sketcher.Constraint("Coincident", 7, 2, 4, 1))
sketch6.addConstraint(Sketcher.Constraint("Coincident", 8, 2, 9, 1))
sketch6.addConstraint(Sketcher.Constraint("Coincident", 9, 2, 10, 1))
sketch6.addConstraint(Sketcher.Constraint("Coincident", 10, 2, 11, 1))
sketch6.addConstraint(Sketcher.Constraint("Coincident", 11, 2, 8, 1))
sketch6.addConstraint(Sketcher.Constraint("Coincident", 12, 2, 13, 1))
sketch6.addConstraint(Sketcher.Constraint("Coincident", 13, 2, 14, 1))
sketch6.addConstraint(Sketcher.Constraint("Coincident", 14, 2, 15, 1))
sketch6.addConstraint(Sketcher.Constraint("Coincident", 15, 2, 12, 1))
sketch6.addConstraint(Sketcher.Constraint("Coincident", 16, 2, 17, 1))
sketch6.addConstraint(Sketcher.Constraint("Coincident", 17, 2, 18, 1))
sketch6.addConstraint(Sketcher.Constraint("Coincident", 18, 2, 19, 1))
sketch6.addConstraint(Sketcher.Constraint("Coincident", 19, 2, 16, 1))
sketch6.addConstraint(Sketcher.Constraint("Vertical", 0))
sketch6.addConstraint(Sketcher.Constraint("Horizontal", 1))
sketch6.addConstraint(Sketcher.Constraint("Vertical", 2))
sketch6.addConstraint(Sketcher.Constraint("Horizontal", 3))
sketch6.addConstraint(Sketcher.Constraint("Vertical", 4))
sketch6.addConstraint(Sketcher.Constraint("Horizontal", 5))
sketch6.addConstraint(Sketcher.Constraint("Vertical", 6))
sketch6.addConstraint(Sketcher.Constraint("Horizontal", 7))
sketch6.addConstraint(Sketcher.Constraint("Vertical", 8))
sketch6.addConstraint(Sketcher.Constraint("Horizontal", 9))
sketch6.addConstraint(Sketcher.Constraint("Vertical", 10))
sketch6.addConstraint(Sketcher.Constraint("Horizontal", 11))
sketch6.addConstraint(Sketcher.Constraint("Vertical", 12))
sketch6.addConstraint(Sketcher.Constraint("Horizontal", 13))
sketch6.addConstraint(Sketcher.Constraint("Vertical", 14))
sketch6.addConstraint(Sketcher.Constraint("Horizontal", 15))
sketch6.addConstraint(Sketcher.Constraint("Vertical", 16))
sketch6.addConstraint(Sketcher.Constraint("Horizontal", 17))
sketch6.addConstraint(Sketcher.Constraint("Vertical", 18))
sketch6.addConstraint(Sketcher.Constraint("Horizontal", 19))
sketch6.addConstraint(Sketcher.Constraint("Horizontal", 7, 2, 10, 2))
sketch6.addConstraint(Sketcher.Constraint("Horizontal", 1, 2, 12, 2))
sketch6.addConstraint(Sketcher.Constraint("Horizontal", 3, 2, 14, 2))
sketch6.addConstraint(Sketcher.Constraint("Vertical", 3, 2, 4, 2))
sketch6.addConstraint(Sketcher.Constraint("Vertical", 2, 2, 5, 2))
sketch6.addConstraint(Sketcher.Constraint("Vertical", 11, 2, 12, 2))
sketch6.addConstraint(Sketcher.Constraint("Vertical", 10, 2, 13, 2))
sketch6.addConstraint(Sketcher.Constraint("Equal", 19, 0))
sketch6.addConstraint(Sketcher.Constraint("Equal", 2, 8))
sketch6.addConstraint(Sketcher.Constraint("DistanceX", 1, 1, 1, 2, Q("10 mm")))
sketch6.addConstraint(Sketcher.Constraint("DistanceX", 9, 1, 9, 2, Q("42 mm")))
sketch6.addConstraint(Sketcher.Constraint("DistanceX", 17, 1, 17, 2, Q("3 mm")))
sketch6.addConstraint(Sketcher.Constraint("DistanceY", 4, 1, 4, 2, Q("2 mm")))
sketch6.addConstraint(Sketcher.Constraint("DistanceY", 16, 1, 16, 2, Q("12 mm")))
sketch6.addConstraint(Sketcher.Constraint("DistanceY", 4, 2, 3, 2, Q("52 mm")))
sketch6.addConstraint(Sketcher.Constraint("DistanceX", 8, 2, 4, 2, Q("52 mm")))
sketch6.addConstraint(Sketcher.Constraint("DistanceX", 2, 2, 16, 2, Q("1 mm")))
sketch6.addConstraint(Sketcher.Constraint("DistanceY", 16, 2, 2, 2, Q("21 mm")))
sketch6.addConstraint(Sketcher.Constraint("DistanceX", -1, 1, 0, 2, Q("21.379475 mm")))
sketch6.addConstraint(Sketcher.Constraint("DistanceY", -1, 1, 0, 2, Q("31.590692 mm")))
pad4 = body.newObject("PartDesign::Pad", "Pad003")
pad4.Profile = sketch6
pad4.Length = 3
pad4.Reversed = True

# Sketch on XY plane
sketch7 = body.newObject("Sketcher::SketchObject", "Sketch006")
sketch7.AttachmentSupport = (doc.getObject("XY_Plane"), [""])
sketch7.MapMode = "FlatFace"
sketch7.AttachmentOffset = App.Placement(App.Vector(0, 0, -21.909308), App.Rotation())
sketch7.addGeometry(Part.LineSegment(App.Vector(-79, 18, 0), App.Vector(-79, 8, 0)), False)
sketch7.addGeometry(Part.LineSegment(App.Vector(-79, 8, 0), App.Vector(-99, 8, 0)), False)
sketch7.addGeometry(Part.LineSegment(App.Vector(-99, 8, 0), App.Vector(-99, 18, 0)), False)
sketch7.addGeometry(Part.LineSegment(App.Vector(-99, 18, 0), App.Vector(-79, 18, 0)), False)
sketch7.addConstraint(Sketcher.Constraint("Coincident", 0, 2, 1, 1))
sketch7.addConstraint(Sketcher.Constraint("Coincident", 1, 2, 2, 1))
sketch7.addConstraint(Sketcher.Constraint("Coincident", 2, 2, 3, 1))
sketch7.addConstraint(Sketcher.Constraint("Coincident", 3, 2, 0, 1))
sketch7.addConstraint(Sketcher.Constraint("Vertical", 0))
sketch7.addConstraint(Sketcher.Constraint("Horizontal", 1))
sketch7.addConstraint(Sketcher.Constraint("Vertical", 2))
sketch7.addConstraint(Sketcher.Constraint("Horizontal", 3))
sketch7.addConstraint(Sketcher.Constraint("DistanceX", 1, 2, 1, 1, Q("20 mm")))
sketch7.addConstraint(Sketcher.Constraint("DistanceY", 0, 2, 0, 1, Q("10 mm")))
sketch7.addConstraint(Sketcher.Constraint("DistanceY", -1, 1, 0, 2, Q("8 mm")))
sketch7.addConstraint(Sketcher.Constraint("DistanceX", 0, 2, -1, 1, Q("78.620525 mm")))
pocket3 = body.newObject("PartDesign::Pocket", "Pocket002")
pocket3.Profile = sketch7
pocket3.Type = "UpToFirst"
pocket3.Reversed = True

# Sketch on YZ plane
sketch8 = body.newObject("Sketcher::SketchObject", "Sketch007")
sketch8.AttachmentSupport = (doc.getObject("YZ_Plane"), [""])
sketch8.MapMode = "FlatFace"
sketch8.AttachmentOffset = App.Placement(App.Vector(0, 0, 35.379475), App.Rotation())
sketch8.addGeometry(Part.Circle(App.Vector(16, 21.6, 0), App.Vector(0, 0, 1), 1.2), False)
sketch8.addConstraint(Sketcher.Constraint("Diameter", 0, Q("2.5 mm")))
sketch8.addConstraint(Sketcher.Constraint("DistanceX", -1, 1, 0, 3, Q("16 mm")))
sketch8.addConstraint(Sketcher.Constraint("DistanceY", -1, 1, 0, 3, Q("21.590692 mm")))
pocket4 = body.newObject("PartDesign::Pocket", "Pocket003")
pocket4.Profile = sketch8
pocket4.Type = "UpToFirst"

# Sketch on YZ plane
sketch9 = body.newObject("Sketcher::SketchObject", "Sketch008")
sketch9.AttachmentSupport = (doc.getObject("YZ_Plane"), [""])
sketch9.MapMode = "FlatFace"
sketch9.AttachmentOffset = App.Placement(App.Vector(0, 0, 35.379475), App.Rotation())
sketch9.addGeometry(Part.Circle(App.Vector(16, -15.4, 0), App.Vector(0, 0, 1), 1.2), False)
sketch9.addConstraint(Sketcher.Constraint("Diameter", 0, Q("2.5 mm")))
sketch9.addConstraint(Sketcher.Constraint("DistanceX", -1, 1, 0, 3, Q("16 mm")))
sketch9.addConstraint(Sketcher.Constraint("DistanceY", 0, 3, -1, 1, Q("15.409308 mm")))
pocket5 = body.newObject("PartDesign::Pocket", "Pocket004")
pocket5.Profile = sketch9
pocket5.Type = "UpToFirst"

# Sketch on XY plane
sketch10 = body.newObject("Sketcher::SketchObject", "Sketch009")
sketch10.AttachmentSupport = (doc.getObject("XY_Plane"), [""])
sketch10.MapMode = "FlatFace"
sketch10.AttachmentOffset = App.Placement(App.Vector(0, 0, -21.909308), App.Rotation())
sketch10.addGeometry(Part.Circle(App.Vector(-43.6, 16, 0), App.Vector(0, 0, 1), 1.2), False)
sketch10.addGeometry(Part.Circle(App.Vector(-110.1, 16, 0), App.Vector(0, 0, 1), 1.2), False)
sketch10.addGeometry(Part.Circle(App.Vector(-52.6, 16, 0), App.Vector(0, 0, 1), 1.2), False)
sketch10.addGeometry(Part.Circle(App.Vector(-101.1, 16, 0), App.Vector(0, 0, 1), 1.2), False)
sketch10.addConstraint(Sketcher.Constraint("Equal", 0, 1))
sketch10.addConstraint(Sketcher.Constraint("Equal", 1, 2))
sketch10.addConstraint(Sketcher.Constraint("Equal", 2, 3))
sketch10.addConstraint(Sketcher.Constraint("Horizontal", 0, 3, 1, 3))
sketch10.addConstraint(Sketcher.Constraint("Horizontal", 1, 3, 2, 3))
sketch10.addConstraint(Sketcher.Constraint("Horizontal", 2, 3, 3, 3))
sketch10.addConstraint(Sketcher.Constraint("Diameter", 0, Q("2.5 mm")))
sketch10.addConstraint(Sketcher.Constraint("DistanceY", -1, 1, 0, 3, Q("16 mm")))
sketch10.addConstraint(Sketcher.Constraint("DistanceX", 2, 3, 0, 3, Q("9 mm")))
sketch10.addConstraint(Sketcher.Constraint("DistanceX", 1, 3, 3, 3, Q("9 mm")))
sketch10.addConstraint(Sketcher.Constraint("DistanceX", 1, 3, 0, 3, Q("66.5 mm")))
sketch10.addConstraint(Sketcher.Constraint("DistanceX", 0, 3, -1, 1, Q("43.620525 mm")))
pocket6 = body.newObject("PartDesign::Pocket", "Pocket005")
pocket6.Profile = sketch10
pocket6.Type = "ThroughAll"
pocket6.Reversed = True

# Sketch on XY plane
sketch11 = body.newObject("Sketcher::SketchObject", "Sketch010")
sketch11.AttachmentSupport = (doc.getObject("XY_Plane"), [""])
sketch11.MapMode = "FlatFace"
sketch11.AttachmentOffset = App.Placement(App.Vector(0, 0, -25.409308), App.Rotation())
sketch11.addGeometry(Part.Circle(App.Vector(-34.6, 16, 0), App.Vector(0, 0, 1), 1.2), False)
sketch11.addConstraint(Sketcher.Constraint("Diameter", 0, Q("2.5 mm")))
sketch11.addConstraint(Sketcher.Constraint("DistanceY", -1, 1, 0, 3, Q("16 mm")))
sketch11.addConstraint(Sketcher.Constraint("DistanceX", 0, 3, -1, 1, Q("34.620525 mm")))
pocket7 = body.newObject("PartDesign::Pocket", "Pocket006")
pocket7.Profile = sketch11
pocket7.Type = "ThroughAll"
pocket7.Reversed = True

# Sketch on XZ plane
sketch12 = body.newObject("Sketcher::SketchObject", "Sketch011")
sketch12.AttachmentSupport = (doc.getObject("XZ_Plane"), [""])
sketch12.MapMode = "FlatFace"
sketch12.addGeometry(Part.LineSegment(App.Vector(-28.6, 30.1, 0), App.Vector(-28.6, 31.6, 0)), False)
sketch12.addGeometry(Part.LineSegment(App.Vector(-28.6, 31.6, 0), App.Vector(-38.6, 31.6, 0)), False)
sketch12.addGeometry(Part.LineSegment(App.Vector(-38.6, 31.6, 0), App.Vector(-38.6, 30.1, 0)), False)
sketch12.addGeometry(Part.LineSegment(App.Vector(-38.6, 30.1, 0), App.Vector(-28.6, 30.1, 0)), False)
sketch12.addGeometry(Part.LineSegment(App.Vector(-28.6, -25.4, 0), App.Vector(-28.6, -23.9, 0)), False)
sketch12.addGeometry(Part.LineSegment(App.Vector(-28.6, -23.9, 0), App.Vector(-38.6, -23.9, 0)), False)
sketch12.addGeometry(Part.LineSegment(App.Vector(-38.6, -23.9, 0), App.Vector(-38.6, -25.4, 0)), False)
sketch12.addGeometry(Part.LineSegment(App.Vector(-38.6, -25.4, 0), App.Vector(-28.6, -25.4, 0)), False)
sketch12.addConstraint(Sketcher.Constraint("Coincident", 0, 2, 1, 1))
sketch12.addConstraint(Sketcher.Constraint("Coincident", 1, 2, 2, 1))
sketch12.addConstraint(Sketcher.Constraint("Coincident", 2, 2, 3, 1))
sketch12.addConstraint(Sketcher.Constraint("Coincident", 3, 2, 0, 1))
sketch12.addConstraint(Sketcher.Constraint("Coincident", 4, 2, 5, 1))
sketch12.addConstraint(Sketcher.Constraint("Coincident", 5, 2, 6, 1))
sketch12.addConstraint(Sketcher.Constraint("Coincident", 6, 2, 7, 1))
sketch12.addConstraint(Sketcher.Constraint("Coincident", 7, 2, 4, 1))
sketch12.addConstraint(Sketcher.Constraint("Vertical", 0))
sketch12.addConstraint(Sketcher.Constraint("Horizontal", 1))
sketch12.addConstraint(Sketcher.Constraint("Vertical", 2))
sketch12.addConstraint(Sketcher.Constraint("Horizontal", 3))
sketch12.addConstraint(Sketcher.Constraint("Vertical", 4))
sketch12.addConstraint(Sketcher.Constraint("Horizontal", 5))
sketch12.addConstraint(Sketcher.Constraint("Vertical", 6))
sketch12.addConstraint(Sketcher.Constraint("Horizontal", 7))
sketch12.addConstraint(Sketcher.Constraint("Vertical", 3, 2, 4, 2))
sketch12.addConstraint(Sketcher.Constraint("Vertical", 2, 2, 5, 2))
sketch12.addConstraint(Sketcher.Constraint("Equal", 2, 4))
sketch12.addConstraint(Sketcher.Constraint("DistanceX", 1, 2, 1, 1, Q("10 mm")))
sketch12.addConstraint(Sketcher.Constraint("DistanceY", 0, 1, 0, 2, Q("1.5 mm")))
sketch12.addConstraint(Sketcher.Constraint("DistanceY", 4, 2, 3, 2, Q("54 mm")))
sketch12.addConstraint(Sketcher.Constraint("DistanceX", 0, 2, -1, 1, Q("28.620525 mm")))
sketch12.addConstraint(Sketcher.Constraint("DistanceY", -1, 1, 0, 2, Q("31.590692 mm")))
pocket8 = body.newObject("PartDesign::Pocket", "Pocket007")
pocket8.Profile = sketch12
pocket8.Length = 1.5

# Sketch on XZ plane
sketch13 = body.newObject("Sketcher::SketchObject", "Sketch012")
sketch13.AttachmentSupport = (doc.getObject("XZ_Plane"), [""])
sketch13.MapMode = "FlatFace"
sketch13.AttachmentOffset = App.Placement(App.Vector(0, 0, -3), App.Rotation())
sketch13.addGeometry(Part.Circle(App.Vector(10.9, 25.6, 0), App.Vector(0, 0, 1), 3), False)
sketch13.addGeometry(Part.Circle(App.Vector(-34.1, 25.6, 0), App.Vector(0, 0, 1), 3), False)
sketch13.addGeometry(Part.Circle(App.Vector(-34.1, -19.4, 0), App.Vector(0, 0, 1), 3), False)
sketch13.addGeometry(Part.Circle(App.Vector(10.9, -19.4, 0), App.Vector(0, 0, 1), 3), False)
sketch13.addConstraint(Sketcher.Constraint("Equal", 0, 1))
sketch13.addConstraint(Sketcher.Constraint("Equal", 1, 2))
sketch13.addConstraint(Sketcher.Constraint("Equal", 2, 3))
sketch13.addConstraint(Sketcher.Constraint("Horizontal", 0, 3, 1, 3))
sketch13.addConstraint(Sketcher.Constraint("Horizontal", 2, 3, 3, 3))
sketch13.addConstraint(Sketcher.Constraint("Vertical", 1, 3, 2, 3))
sketch13.addConstraint(Sketcher.Constraint("Vertical", 0, 3, 3, 3))
sketch13.addConstraint(Sketcher.Constraint("Diameter", 0, Q("6 mm")))
sketch13.addConstraint(Sketcher.Constraint("DistanceX", 1, 3, 0, 3, Q("45 mm")))
sketch13.addConstraint(Sketcher.Constraint("DistanceY", 2, 3, 1, 3, Q("45 mm")))
sketch13.addConstraint(Sketcher.Constraint("DistanceX", -1, 1, 0, 3, Q("10.879475 mm")))
sketch13.addConstraint(Sketcher.Constraint("DistanceY", -1, 1, 0, 3, Q("25.590692 mm")))
pocket9 = body.newObject("PartDesign::Pocket", "Pocket008")
pocket9.Profile = sketch13
pocket9.Type = "TwoLengths"
pocket9.Length = 19
pocket9.Length2 = 0.5

# Sketch on XZ plane
sketch14 = body.newObject("Sketcher::SketchObject", "Sketch013")
sketch14.AttachmentSupport = (doc.getObject("XZ_Plane"), [""])
sketch14.MapMode = "FlatFace"
sketch14.AttachmentOffset = App.Placement(App.Vector(0, 0, -3), App.Rotation())
sketch14.addGeometry(Part.Circle(App.Vector(-75.1, -12.2, 0), App.Vector(0, 0, 1), 3), False)
sketch14.addGeometry(Part.Circle(App.Vector(-75.1, 18.3, 0), App.Vector(0, 0, 1), 3), False)
sketch14.addGeometry(Part.Circle(App.Vector(-44.6, -12.2, 0), App.Vector(0, 0, 1), 3), False)
sketch14.addGeometry(Part.Circle(App.Vector(-44.6, 18.3, 0), App.Vector(0, 0, 1), 3), False)
sketch14.addConstraint(Sketcher.Constraint("Equal", 0, 1))
sketch14.addConstraint(Sketcher.Constraint("Equal", 1, 2))
sketch14.addConstraint(Sketcher.Constraint("Equal", 2, 3))
sketch14.addConstraint(Sketcher.Constraint("Horizontal", 0, 3, 2, 3))
sketch14.addConstraint(Sketcher.Constraint("Horizontal", 1, 3, 3, 3))
sketch14.addConstraint(Sketcher.Constraint("Vertical", 0, 3, 1, 3))
sketch14.addConstraint(Sketcher.Constraint("Vertical", 2, 3, 3, 3))
sketch14.addConstraint(Sketcher.Constraint("Diameter", 0, Q("6 mm")))
sketch14.addConstraint(Sketcher.Constraint("DistanceY", 0, 3, 1, 3, Q("30.5 mm")))
sketch14.addConstraint(Sketcher.Constraint("DistanceX", 0, 3, 2, 3, Q("30.5 mm")))
sketch14.addConstraint(Sketcher.Constraint("DistanceX", 0, 3, -1, 1, Q("75.120525 mm")))
sketch14.addConstraint(Sketcher.Constraint("DistanceY", 0, 3, -1, 1, Q("12.159308 mm")))
pocket10 = body.newObject("PartDesign::Pocket", "Pocket009")
pocket10.Profile = sketch14
pocket10.Length = 1
pocket10.Reversed = True

# Sketch on XZ plane
sketch15 = body.newObject("Sketcher::SketchObject", "Sketch014")
sketch15.AttachmentSupport = (doc.getObject("XZ_Plane"), [""])
sketch15.MapMode = "FlatFace"
sketch15.AttachmentOffset = App.Placement(App.Vector(0, 0, -3), App.Rotation())
sketch15.addGeometry(Part.LineSegment(App.Vector(-122.6, -18.9, 0), App.Vector(-122.6, 25.1, 0)), False)
sketch15.addGeometry(Part.LineSegment(App.Vector(-122.6, 25.1, 0), App.Vector(-121.6, 25.1, 0)), False)
sketch15.addGeometry(Part.LineSegment(App.Vector(-121.6, 25.1, 0), App.Vector(-121.6, -18.9, 0)), False)
sketch15.addGeometry(Part.LineSegment(App.Vector(-121.6, -18.9, 0), App.Vector(-122.6, -18.9, 0)), False)
sketch15.addConstraint(Sketcher.Constraint("Coincident", 0, 2, 1, 1))
sketch15.addConstraint(Sketcher.Constraint("Coincident", 1, 2, 2, 1))
sketch15.addConstraint(Sketcher.Constraint("Coincident", 2, 2, 3, 1))
sketch15.addConstraint(Sketcher.Constraint("Coincident", 3, 2, 0, 1))
sketch15.addConstraint(Sketcher.Constraint("Vertical", 0))
sketch15.addConstraint(Sketcher.Constraint("Horizontal", 1))
sketch15.addConstraint(Sketcher.Constraint("Vertical", 2))
sketch15.addConstraint(Sketcher.Constraint("Horizontal", 3))
sketch15.addConstraint(Sketcher.Constraint("DistanceX", 1, 1, 1, 2, Q("1 mm")))
sketch15.addConstraint(Sketcher.Constraint("DistanceY", 0, 1, 0, 2, Q("44 mm")))
sketch15.addConstraint(Sketcher.Constraint("DistanceX", 0, 2, -1, 1, Q("122.620525 mm")))
sketch15.addConstraint(Sketcher.Constraint("DistanceY", -1, 1, 0, 2, Q("25.090692 mm")))
pad5 = body.newObject("PartDesign::Pad", "Pad004")
pad5.Profile = sketch15
pad5.Length = 18
pad5.Reversed = True

doc.recompute()
